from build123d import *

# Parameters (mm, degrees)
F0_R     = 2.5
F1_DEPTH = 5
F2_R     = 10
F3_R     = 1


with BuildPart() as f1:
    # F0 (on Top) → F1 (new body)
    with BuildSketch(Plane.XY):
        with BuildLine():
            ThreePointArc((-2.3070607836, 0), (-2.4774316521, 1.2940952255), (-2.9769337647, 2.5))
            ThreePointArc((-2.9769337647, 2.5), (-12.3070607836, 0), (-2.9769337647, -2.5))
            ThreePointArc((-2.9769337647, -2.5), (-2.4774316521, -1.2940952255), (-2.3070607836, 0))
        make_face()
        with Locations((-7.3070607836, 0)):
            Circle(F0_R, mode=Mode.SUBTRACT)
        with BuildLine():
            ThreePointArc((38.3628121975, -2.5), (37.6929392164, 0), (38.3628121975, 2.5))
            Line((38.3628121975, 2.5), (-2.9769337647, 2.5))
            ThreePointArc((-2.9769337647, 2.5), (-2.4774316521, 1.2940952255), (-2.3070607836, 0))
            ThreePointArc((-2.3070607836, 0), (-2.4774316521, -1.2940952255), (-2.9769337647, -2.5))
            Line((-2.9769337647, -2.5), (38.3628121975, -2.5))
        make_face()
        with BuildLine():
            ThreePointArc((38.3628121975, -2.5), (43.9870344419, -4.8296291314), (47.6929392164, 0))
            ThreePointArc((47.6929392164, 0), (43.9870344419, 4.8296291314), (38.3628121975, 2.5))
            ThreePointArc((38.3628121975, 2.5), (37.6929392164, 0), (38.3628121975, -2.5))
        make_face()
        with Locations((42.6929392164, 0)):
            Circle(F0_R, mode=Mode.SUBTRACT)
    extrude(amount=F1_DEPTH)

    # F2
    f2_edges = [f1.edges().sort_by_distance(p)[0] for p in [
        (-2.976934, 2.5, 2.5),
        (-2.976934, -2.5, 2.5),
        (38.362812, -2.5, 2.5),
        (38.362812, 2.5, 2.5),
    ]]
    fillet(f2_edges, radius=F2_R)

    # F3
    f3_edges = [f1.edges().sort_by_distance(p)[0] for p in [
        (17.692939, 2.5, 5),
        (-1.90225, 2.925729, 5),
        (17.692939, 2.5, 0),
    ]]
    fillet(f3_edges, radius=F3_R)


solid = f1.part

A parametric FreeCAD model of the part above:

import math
import FreeCAD as App
import Part
import Sketcher


def edges_at(feature, points):
    """Names of the edges that pass closest to the given points."""
    edges = feature.Shape.Edges
    near = lambda p: min(range(len(edges)), key=lambda i: edges[i].distToShape(Part.Vertex(*p))[0])
    return sorted({f"Edge{near(p) + 1}" for p in points})

doc = App.newDocument("Part")
body = doc.addObject("PartDesign::Body", "Body")

sketch1 = doc.addObject("Sketcher::SketchObject", "Sketch")
body.addObject(sketch1)
sketch1.AttachmentSupport = (doc.XY_Plane, [""])
sketch1.MapMode = "FlatFace"
sketch1.addGeometry([
    Part.ArcOfCircle(Part.Circle(App.Vector(-7.3, 0, 0), App.Vector(0, 0, 1), 5), math.radians(30), math.radians(330)),
    Part.LineSegment(App.Vector(-3, -2.5, 0), App.Vector(38.4, -2.5, 0)),
    Part.ArcOfCircle(Part.Circle(App.Vector(42.7, 0, 0), App.Vector(0, 0, 1), 5), math.radians(-150), math.radians(0)),
    Part.ArcOfCircle(Part.Circle(App.Vector(42.7, 0, 0), App.Vector(0, 0, 1), 5), math.radians(0), math.radians(150)),
    Part.LineSegment(App.Vector(38.4, 2.5, 0), App.Vector(-3, 2.5, 0)),
    Part.Circle(App.Vector(-7.3, 0, 0), App.Vector(0, 0, 1), 2.5),
    Part.Circle(App.Vector(42.7, 0, 0), App.Vector(0, 0, 1), 2.5),
], False)
sketch1.addConstraint([
    Sketcher.Constraint("Coincident", 0, 2, 1, 1),
    Sketcher.Constraint("Coincident", 1, 2, 2, 1),
    Sketcher.Constraint("Tangent", 2, 2, 3, 1),
    Sketcher.Constraint("Coincident", 3, 2, 4, 1),
    Sketcher.Constraint("Coincident", 4, 2, 0, 1),
    Sketcher.Constraint("Horizontal", 1),
    Sketcher.Constraint("Horizontal", 4),
    Sketcher.Constraint("Coincident", 5, 3, 0, 3),
    Sketcher.Constraint("Coincident", 6, 3, 2, 3),
    Sketcher.Constraint("Equal", 0, 2),
    Sketcher.Constraint("Equal", 2, 3),
    Sketcher.Constraint("Equal", 5, 6),
    Sketcher.Constraint("Symmetric", 1, 2, 3, 2, -1),
    Sketcher.Constraint("PointOnObject", 0, 3, -1),
    Sketcher.Constraint("PointOnObject", 2, 2, -1),
    Sketcher.Constraint("Diameter", 5, 5.0),
    Sketcher.Constraint("Radius", 0, 5.0),
    Sketcher.Constraint("DistanceX", 0, 3, 2, 3, 50.0),
    Sketcher.Constraint("DistanceY", 1, 2, 3, 2, 5.0),
    Sketcher.Constraint("DistanceX", 0, 3, -1, 1, 7.307061),
])
pad1 = doc.addObject("PartDesign::Pad", "Pad")
body.addObject(pad1)
pad1.Profile = sketch1
pad1.Length = 5
doc.recompute()

fillet = doc.addObject("PartDesign::Fillet", "Fillet")
body.addObject(fillet)
fillet.Base = (pad1, edges_at(pad1, [
    (-2.977, 2.5, 2.5),
    (-2.977, -2.5, 2.5),
    (38.363, -2.5, 2.5),
    (38.363, 2.5, 2.5),
]))
fillet.Radius = 10
doc.recompute()

fillet2 = doc.addObject("PartDesign::Fillet", "Fillet001")
body.addObject(fillet2)
fillet2.Base = (fillet, edges_at(fillet, [(17.693, 2.5, 5), (-1.902, 2.926, 5), (17.693, 2.5, 0)]))
fillet2.Radius = 1

doc.recompute()
